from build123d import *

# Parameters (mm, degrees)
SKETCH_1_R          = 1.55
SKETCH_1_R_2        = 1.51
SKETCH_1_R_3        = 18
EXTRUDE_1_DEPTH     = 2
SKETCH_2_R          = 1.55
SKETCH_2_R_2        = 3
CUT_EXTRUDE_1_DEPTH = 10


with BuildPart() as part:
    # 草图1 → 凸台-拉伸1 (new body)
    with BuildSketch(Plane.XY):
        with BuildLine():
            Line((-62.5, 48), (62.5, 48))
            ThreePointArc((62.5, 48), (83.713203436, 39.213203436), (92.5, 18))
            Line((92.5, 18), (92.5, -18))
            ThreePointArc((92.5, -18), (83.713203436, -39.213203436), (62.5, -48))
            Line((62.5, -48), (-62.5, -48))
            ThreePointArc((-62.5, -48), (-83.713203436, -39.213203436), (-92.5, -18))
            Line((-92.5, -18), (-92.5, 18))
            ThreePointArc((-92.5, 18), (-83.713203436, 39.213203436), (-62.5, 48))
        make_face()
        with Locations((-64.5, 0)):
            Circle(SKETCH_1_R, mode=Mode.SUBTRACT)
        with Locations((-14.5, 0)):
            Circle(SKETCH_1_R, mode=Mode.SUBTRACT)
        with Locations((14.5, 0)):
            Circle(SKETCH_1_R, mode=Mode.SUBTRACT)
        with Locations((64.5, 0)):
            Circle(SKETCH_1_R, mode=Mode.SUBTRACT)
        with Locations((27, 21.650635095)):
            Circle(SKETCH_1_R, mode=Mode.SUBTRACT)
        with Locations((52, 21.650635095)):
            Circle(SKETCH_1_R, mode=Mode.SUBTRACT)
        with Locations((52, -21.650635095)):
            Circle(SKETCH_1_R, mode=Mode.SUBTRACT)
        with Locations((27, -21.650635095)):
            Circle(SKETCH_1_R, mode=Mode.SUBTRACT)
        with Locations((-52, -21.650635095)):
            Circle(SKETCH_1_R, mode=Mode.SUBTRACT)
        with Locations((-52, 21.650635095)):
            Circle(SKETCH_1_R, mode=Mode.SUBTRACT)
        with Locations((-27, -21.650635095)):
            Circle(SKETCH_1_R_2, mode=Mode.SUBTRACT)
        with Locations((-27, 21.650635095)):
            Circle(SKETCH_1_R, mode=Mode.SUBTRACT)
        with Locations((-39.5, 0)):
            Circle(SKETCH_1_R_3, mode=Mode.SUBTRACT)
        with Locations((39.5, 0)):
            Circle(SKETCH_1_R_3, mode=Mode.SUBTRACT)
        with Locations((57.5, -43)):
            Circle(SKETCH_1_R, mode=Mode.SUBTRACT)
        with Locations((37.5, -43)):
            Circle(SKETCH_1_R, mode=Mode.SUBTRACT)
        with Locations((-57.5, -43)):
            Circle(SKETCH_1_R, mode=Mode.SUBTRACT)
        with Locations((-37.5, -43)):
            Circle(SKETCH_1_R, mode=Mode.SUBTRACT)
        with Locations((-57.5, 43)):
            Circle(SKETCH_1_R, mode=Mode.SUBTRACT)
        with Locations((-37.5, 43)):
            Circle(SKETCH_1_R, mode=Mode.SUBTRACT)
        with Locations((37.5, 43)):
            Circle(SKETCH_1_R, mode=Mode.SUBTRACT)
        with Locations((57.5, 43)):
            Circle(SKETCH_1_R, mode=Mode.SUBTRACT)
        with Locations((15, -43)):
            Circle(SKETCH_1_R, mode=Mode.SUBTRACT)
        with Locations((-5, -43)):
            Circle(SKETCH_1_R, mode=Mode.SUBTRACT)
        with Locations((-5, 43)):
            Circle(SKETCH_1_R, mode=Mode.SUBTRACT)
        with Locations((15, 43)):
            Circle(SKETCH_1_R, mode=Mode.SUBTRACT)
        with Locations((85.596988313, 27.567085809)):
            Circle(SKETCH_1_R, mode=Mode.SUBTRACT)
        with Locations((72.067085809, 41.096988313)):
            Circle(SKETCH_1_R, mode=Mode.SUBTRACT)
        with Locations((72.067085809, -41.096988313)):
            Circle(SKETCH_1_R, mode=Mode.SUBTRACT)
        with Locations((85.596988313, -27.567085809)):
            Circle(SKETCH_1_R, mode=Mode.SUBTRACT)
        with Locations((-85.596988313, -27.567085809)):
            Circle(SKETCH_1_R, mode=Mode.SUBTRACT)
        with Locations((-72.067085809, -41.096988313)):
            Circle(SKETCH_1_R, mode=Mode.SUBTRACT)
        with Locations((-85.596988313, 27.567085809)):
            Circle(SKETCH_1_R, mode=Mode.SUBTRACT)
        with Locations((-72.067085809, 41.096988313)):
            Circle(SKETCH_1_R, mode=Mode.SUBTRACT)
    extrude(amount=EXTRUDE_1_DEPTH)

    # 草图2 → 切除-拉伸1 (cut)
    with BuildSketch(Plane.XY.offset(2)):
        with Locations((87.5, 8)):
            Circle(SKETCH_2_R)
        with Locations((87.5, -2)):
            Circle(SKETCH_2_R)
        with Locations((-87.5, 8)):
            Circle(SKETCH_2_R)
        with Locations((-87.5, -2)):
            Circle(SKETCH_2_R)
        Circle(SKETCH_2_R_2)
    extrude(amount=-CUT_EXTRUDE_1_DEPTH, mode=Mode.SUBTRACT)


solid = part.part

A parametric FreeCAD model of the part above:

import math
import FreeCAD as App
import Part
import Sketcher

V = App.Vector
Q = App.Units.Quantity

doc = App.newDocument("Part")
params = doc.addObject("Spreadsheet::Sheet", "Params")
for row, (alias, value) in enumerate([
    ("sketch1_diameter", "36 mm"),
    ("sketch1_radius", "30 mm"),
    ("sketch1_diameter2", "3.1 mm"),
    ("sketch1_diameter3", "3.02 mm"),
    ("sketch1_width", "125 mm"),
    ("pad1_length", "2 mm"),
    ("sketch2_diameter", "6 mm"),
    ("sketch2_diameter2", "3.1 mm"),
    ("pocket1_length", "10 mm"),
], start=1):
    params.set(f"A{row}", alias)
    params.set(f"B{row}", "=" + value)
    params.setAlias(f"B{row}", alias)

body = doc.addObject("PartDesign::Body", "Body")

# Sketch on XY plane
sketch1 = body.newObject("Sketcher::SketchObject", "Sketch")
sketch1.AttachmentSupport = (doc.getObject("XY_Plane"), [""])
sketch1.MapMode = "FlatFace"
sketch1.addGeometry([
    Part.LineSegment(V(62.5, 48, 0), V(-62.5, 48, 0)),  # 0
    Part.ArcOfCircle(Part.Circle(V(-62.5, 18, 0), V(0, 0, 1), 30), math.radians(90), math.radians(180)),  # 1
    Part.LineSegment(V(-92.5, 18, 0), V(-92.5, -18, 0)),  # 2
    Part.ArcOfCircle(Part.Circle(V(-62.5, -18, 0), V(0, 0, 1), 30), math.radians(180), math.radians(270)),  # 3
    Part.LineSegment(V(-62.5, -48, 0), V(62.5, -48, 0)),  # 4
    Part.ArcOfCircle(Part.Circle(V(62.5, -18, 0), V(0, 0, 1), 30), math.radians(-90), math.radians(0)),  # 5
    Part.LineSegment(V(92.5, -18, 0), V(92.5, 18, 0)),  # 6
    Part.ArcOfCircle(Part.Circle(V(62.5, 18, 0), V(0, 0, 1), 30), math.radians(0), math.radians(90)),  # 7
    Part.Circle(V(72.1, -41.1, 0), V(0, 0, 1), 1.6),  # 8
    Part.Circle(V(57.5, -43, 0), V(0, 0, 1), 1.6),  # 9
    Part.Circle(V(85.6, -27.6, 0), V(0, 0, 1), 1.6),  # 10
    Part.Circle(V(37.5, -43, 0), V(0, 0, 1), 1.6),  # 11
    Part.Circle(V(15, -43, 0), V(0, 0, 1), 1.6),  # 12
    Part.Circle(V(52, -21.7, 0), V(0, 0, 1), 1.6),  # 13
    Part.Circle(V(27, -21.7, 0), V(0, 0, 1), 1.6),  # 14
    Part.Circle(V(-5, -43, 0), V(0, 0, 1), 1.6),  # 15
    Part.Circle(V(-37.5, -43, 0), V(0, 0, 1), 1.6),  # 16
    Part.Circle(V(-57.5, -43, 0), V(0, 0, 1), 1.6),  # 17
    Part.Circle(V(-72.1, -41.1, 0), V(0, 0, 1), 1.6),  # 18
    Part.Circle(V(-85.6, -27.6, 0), V(0, 0, 1), 1.6),  # 19
    Part.Circle(V(-27, -21.7, 0), V(0, 0, 1), 1.5),  # 20
    Part.Circle(V(-52, -21.7, 0), V(0, 0, 1), 1.6),  # 21
    Part.Circle(V(64.5, 0, 0), V(0, 0, 1), 1.6),  # 22
    Part.Circle(V(52, 21.7, 0), V(0, 0, 1), 1.6),  # 23
    Part.Circle(V(39.5, 0, 0), V(0, 0, 1), 18),  # 24
    Part.Circle(V(14.5, 0, 0), V(0, 0, 1), 1.6),  # 25
    Part.Circle(V(27, 21.7, 0), V(0, 0, 1), 1.6),  # 26
    Part.Circle(V(85.6, 27.6, 0), V(0, 0, 1), 1.6),  # 27
    Part.Circle(V(72.1, 41.1, 0), V(0, 0, 1), 1.6),  # 28
    Part.Circle(V(57.5, 43, 0), V(0, 0, 1), 1.6),  # 29
    Part.Circle(V(37.5, 43, 0), V(0, 0, 1), 1.6),  # 30
    Part.Circle(V(15, 43, 0), V(0, 0, 1), 1.6),  # 31
    Part.Circle(V(-14.5, 0, 0), V(0, 0, 1), 1.6),  # 32
    Part.Circle(V(-39.5, 0, 0), V(0, 0, 1), 18),  # 33
    Part.Circle(V(-27, 21.7, 0), V(0, 0, 1), 1.6),  # 34
    Part.Circle(V(-64.5, 0, 0), V(0, 0, 1), 1.6),  # 35
    Part.Circle(V(-52, 21.7, 0), V(0, 0, 1), 1.6),  # 36
    Part.Circle(V(-5, 43, 0), V(0, 0, 1), 1.6),  # 37
    Part.Circle(V(-37.5, 43, 0), V(0, 0, 1), 1.6),  # 38
    Part.Circle(V(-85.6, 27.6, 0), V(0, 0, 1), 1.6),  # 39
    Part.Circle(V(-57.5, 43, 0), V(0, 0, 1), 1.6),  # 40
    Part.Circle(V(-72.1, 41.1, 0), V(0, 0, 1), 1.6),  # 41
], False)
sketch1.addConstraint([
    Sketcher.Constraint("Tangent", 0, 2, 1, 1),
    Sketcher.Constraint("Tangent", 1, 2, 2, 1),
    Sketcher.Constraint("Tangent", 2, 2, 3, 1),
    Sketcher.Constraint("Tangent", 3, 2, 4, 1),
    Sketcher.Constraint("Tangent", 4, 2, 5, 1),
    Sketcher.Constraint("Tangent", 5, 2, 6, 1),
    Sketcher.Constraint("Tangent", 6, 2, 7, 1),
    Sketcher.Constraint("Tangent", 7, 2, 0, 1),
    Sketcher.Constraint("Horizontal", 0),
    Sketcher.Constraint("Vertical", 2),
    Sketcher.Constraint("Horizontal", 4),
    Sketcher.Constraint("Vertical", 6),
    Sketcher.Constraint("Equal", 1, 3),
    Sketcher.Constraint("Equal", 3, 5),
    Sketcher.Constraint("Equal", 5, 7),
    Sketcher.Constraint("Equal", 8, 9),
    Sketcher.Constraint("Equal", 9, 10),
    Sketcher.Constraint("Equal", 10, 11),
    Sketcher.Constraint("Equal", 11, 12),
    Sketcher.Constraint("Equal", 12, 13),
    Sketcher.Constraint("Equal", 13, 14),
    Sketcher.Constraint("Equal", 14, 15),
    Sketcher.Constraint("Equal", 15, 16),
    Sketcher.Constraint("Equal", 16, 17),
    Sketcher.Constraint("Equal", 17, 18),
    Sketcher.Constraint("Equal", 18, 19),
    Sketcher.Constraint("Equal", 19, 21),
    Sketcher.Constraint("Equal", 21, 22),
    Sketcher.Constraint("Equal", 22, 23),
    Sketcher.Constraint("Equal", 23, 25),
    Sketcher.Constraint("Equal", 25, 26),
    Sketcher.Constraint("Equal", 26, 27),
    Sketcher.Constraint("Equal", 27, 28),
    Sketcher.Constraint("Equal", 28, 29),
    Sketcher.Constraint("Equal", 29, 30),
    Sketcher.Constraint("Equal", 30, 31),
    Sketcher.Constraint("Equal", 31, 32),
    Sketcher.Constraint("Equal", 24, 33),
    Sketcher.Constraint("Equal", 32, 34),
    Sketcher.Constraint("Equal", 34, 35),
    Sketcher.Constraint("Equal", 35, 36),
    Sketcher.Constraint("Equal", 36, 37),
    Sketcher.Constraint("Equal", 37, 38),
    Sketcher.Constraint("Equal", 38, 39),
    Sketcher.Constraint("Equal", 39, 40),
    Sketcher.Constraint("Equal", 40, 41),
    Sketcher.Constraint("Symmetric", 1, 3, 5, 3, -1, 1),
    Sketcher.Constraint("Symmetric", 21, 3, 23, 3, -1, 1),
    Sketcher.Constraint("Symmetric", 20, 3, 26, 3, -1, 1),
    Sketcher.Constraint("Symmetric", 19, 3, 27, 3, -1, 1),
    Sketcher.Constraint("Symmetric", 18, 3, 28, 3, -1, 1),
    Sketcher.Constraint("Symmetric", 17, 3, 29, 3, -1, 1),
    Sketcher.Constraint("Symmetric", 16, 3, 30, 3, -1, 1),
    Sketcher.Constraint("Symmetric", 25, 3, 32, 3, -1, 1),
    Sketcher.Constraint("Symmetric", 24, 3, 33, 3, -1, 1),
    Sketcher.Constraint("Symmetric", 14, 3, 34, 3, -1, 1),
    Sketcher.Constraint("Symmetric", 22, 3, 35, 3, -1, 1),
    Sketcher.Constraint("Symmetric", 13, 3, 36, 3, -1, 1),
    Sketcher.Constraint("Symmetric", 11, 3, 38, 3, -1, 1),
    Sketcher.Constraint("Symmetric", 10, 3, 39, 3, -1, 1),
    Sketcher.Constraint("Symmetric", 9, 3, 40, 3, -1, 1),
    Sketcher.Constraint("Symmetric", 8, 3, 41, 3, -1, 1),
    Sketcher.Constraint("Symmetric", 11, 3, 16, 3, -2),
    Sketcher.Constraint("Symmetric", 9, 3, 17, 3, -2),
    Sketcher.Constraint("Symmetric", 8, 3, 18, 3, -2),
    Sketcher.Constraint("Symmetric", 10, 3, 19, 3, -2),
    Sketcher.Constraint("Symmetric", 14, 3, 20, 3, -2),
    Sketcher.Constraint("Symmetric", 13, 3, 21, 3, -2),
    Sketcher.Constraint("Symmetric", 12, 3, 31, 3, -1),
    Sketcher.Constraint("Symmetric", 15, 3, 37, 3, -1),
    Sketcher.Constraint("PointOnObject", 22, 3, -1),
    Sketcher.Constraint("PointOnObject", 24, 3, -1),
    Sketcher.Constraint("PointOnObject", 25, 3, -1),
    Sketcher.Constraint("Horizontal", 9, 3, 11, 3),
    Sketcher.Constraint("Horizontal", 11, 3, 12, 3),
    Sketcher.Constraint("Horizontal", 13, 3, 14, 3),
    Sketcher.Constraint("Horizontal", 12, 3, 15, 3),
    Sketcher.Constraint("Diameter", 24, Q("36 mm")),
    Sketcher.Constraint("Radius", 1, Q("30 mm")),
    Sketcher.Constraint("Diameter", 8, Q("3.1 mm")),
    Sketcher.Constraint("Diameter", 20, Q("3.02 mm")),
    Sketcher.Constraint("DistanceX", 0, 2, 0, 1, Q("125 mm")),
    Sketcher.Constraint("DistanceY", 2, 2, 2, 1, Q("36 mm")),
    Sketcher.Constraint("DistanceY", 9, 3, -1, 1, Q("43 mm")),
    Sketcher.Constraint("DistanceX", -1, 1, 12, 3, Q("15 mm")),
    Sketcher.Constraint("DistanceX", -1, 1, 13, 3, Q("52 mm")),
    Sketcher.Constraint("DistanceX", -1, 1, 14, 3, Q("27 mm")),
    Sketcher.Constraint("DistanceX", 15, 3, -1, 1, Q("5 mm")),
    Sketcher.Constraint("DistanceX", 9, 3, 5, 3, Q("5 mm")),
    Sketcher.Constraint("DistanceX", 11, 3, 9, 3, Q("20 mm")),
    Sketcher.Constraint("DistanceX", 5, 3, 22, 3, Q("2 mm")),
    Sketcher.Constraint("DistanceX", 24, 3, 22, 3, Q("25 mm")),
    Sketcher.Constraint("DistanceX", 25, 3, 24, 3, Q("25 mm")),
    Sketcher.Constraint("DistanceY", 8, 3, -1, 1, Q("41.096988 mm")),
    Sketcher.Constraint("DistanceX", -1, 1, 10, 3, Q("85.596988 mm")),
    Sketcher.Constraint("DistanceY", 10, 3, 13, 3, Q("5.916451 mm")),
    Sketcher.Constraint("DistanceY", 13, 3, 23, 3, Q("43.30127 mm")),
    Sketcher.Constraint("DistanceX", -1, 1, 8, 3, Q("72.067086 mm")),
])
sketch1.setExpression("Constraints[77]", "Params.sketch1_diameter")
sketch1.setExpression("Constraints[78]", "Params.sketch1_radius")
sketch1.setExpression("Constraints[79]", "Params.sketch1_diameter2")
sketch1.setExpression("Constraints[80]", "Params.sketch1_diameter3")
sketch1.setExpression("Constraints[81]", "Params.sketch1_width")
pad1 = body.newObject("PartDesign::Pad", "Pad")
pad1.Profile = sketch1
pad1.setExpression("Length", "Params.pad1_length")

# Sketch on XY plane
sketch2 = body.newObject("Sketcher::SketchObject", "Sketch001")
sketch2.AttachmentSupport = (doc.getObject("XY_Plane"), [""])
sketch2.MapMode = "FlatFace"
sketch2.AttachmentOffset = App.Placement(V(0, 0, 2), App.Rotation())
sketch2.addGeometry([
    Part.Circle(V(87.5, 8, 0), V(0, 0, 1), 1.6),  # 0
    Part.Circle(V(87.5, -2, 0), V(0, 0, 1), 1.6),  # 1
    Part.Circle(V(-87.5, 8, 0), V(0, 0, 1), 1.6),  # 2
    Part.Circle(V(-87.5, -2, 0), V(0, 0, 1), 1.6),  # 3
    Part.Circle(V(0, 0, 0), V(0, 0, 1), 3),  # 4
], False)
sketch2.addConstraint([
    Sketcher.Constraint("Coincident", 4, 3, -1, 1),
    Sketcher.Constraint("Equal", 0, 1),
    Sketcher.Constraint("Equal", 1, 2),
    Sketcher.Constraint("Equal", 2, 3),
    Sketcher.Constraint("Symmetric", 0, 3, 2, 3, -2),
    Sketcher.Constraint("Symmetric", 1, 3, 3, 3, -2),
    Sketcher.Constraint("Vertical", 0, 3, 1, 3),
    Sketcher.Constraint("Diameter", 4, Q("6 mm")),
    Sketcher.Constraint("Diameter", 0, Q("3.1 mm")),
    Sketcher.Constraint("DistanceY", -1, 1, 0, 3, Q("8 mm")),
    Sketcher.Constraint("DistanceY", 1, 3, -1, 1, Q("2 mm")),
    Sketcher.Constraint("DistanceX", 2, 3, 0, 3, Q("175 mm")),
])
sketch2.setExpression("Constraints[7]", "Params.sketch2_diameter")
sketch2.setExpression("Constraints[8]", "Params.sketch2_diameter2")
pocket1 = body.newObject("PartDesign::Pocket", "Pocket")
pocket1.Profile = sketch2
pocket1.setExpression("Length", "Params.pocket1_length")

doc.recompute()
